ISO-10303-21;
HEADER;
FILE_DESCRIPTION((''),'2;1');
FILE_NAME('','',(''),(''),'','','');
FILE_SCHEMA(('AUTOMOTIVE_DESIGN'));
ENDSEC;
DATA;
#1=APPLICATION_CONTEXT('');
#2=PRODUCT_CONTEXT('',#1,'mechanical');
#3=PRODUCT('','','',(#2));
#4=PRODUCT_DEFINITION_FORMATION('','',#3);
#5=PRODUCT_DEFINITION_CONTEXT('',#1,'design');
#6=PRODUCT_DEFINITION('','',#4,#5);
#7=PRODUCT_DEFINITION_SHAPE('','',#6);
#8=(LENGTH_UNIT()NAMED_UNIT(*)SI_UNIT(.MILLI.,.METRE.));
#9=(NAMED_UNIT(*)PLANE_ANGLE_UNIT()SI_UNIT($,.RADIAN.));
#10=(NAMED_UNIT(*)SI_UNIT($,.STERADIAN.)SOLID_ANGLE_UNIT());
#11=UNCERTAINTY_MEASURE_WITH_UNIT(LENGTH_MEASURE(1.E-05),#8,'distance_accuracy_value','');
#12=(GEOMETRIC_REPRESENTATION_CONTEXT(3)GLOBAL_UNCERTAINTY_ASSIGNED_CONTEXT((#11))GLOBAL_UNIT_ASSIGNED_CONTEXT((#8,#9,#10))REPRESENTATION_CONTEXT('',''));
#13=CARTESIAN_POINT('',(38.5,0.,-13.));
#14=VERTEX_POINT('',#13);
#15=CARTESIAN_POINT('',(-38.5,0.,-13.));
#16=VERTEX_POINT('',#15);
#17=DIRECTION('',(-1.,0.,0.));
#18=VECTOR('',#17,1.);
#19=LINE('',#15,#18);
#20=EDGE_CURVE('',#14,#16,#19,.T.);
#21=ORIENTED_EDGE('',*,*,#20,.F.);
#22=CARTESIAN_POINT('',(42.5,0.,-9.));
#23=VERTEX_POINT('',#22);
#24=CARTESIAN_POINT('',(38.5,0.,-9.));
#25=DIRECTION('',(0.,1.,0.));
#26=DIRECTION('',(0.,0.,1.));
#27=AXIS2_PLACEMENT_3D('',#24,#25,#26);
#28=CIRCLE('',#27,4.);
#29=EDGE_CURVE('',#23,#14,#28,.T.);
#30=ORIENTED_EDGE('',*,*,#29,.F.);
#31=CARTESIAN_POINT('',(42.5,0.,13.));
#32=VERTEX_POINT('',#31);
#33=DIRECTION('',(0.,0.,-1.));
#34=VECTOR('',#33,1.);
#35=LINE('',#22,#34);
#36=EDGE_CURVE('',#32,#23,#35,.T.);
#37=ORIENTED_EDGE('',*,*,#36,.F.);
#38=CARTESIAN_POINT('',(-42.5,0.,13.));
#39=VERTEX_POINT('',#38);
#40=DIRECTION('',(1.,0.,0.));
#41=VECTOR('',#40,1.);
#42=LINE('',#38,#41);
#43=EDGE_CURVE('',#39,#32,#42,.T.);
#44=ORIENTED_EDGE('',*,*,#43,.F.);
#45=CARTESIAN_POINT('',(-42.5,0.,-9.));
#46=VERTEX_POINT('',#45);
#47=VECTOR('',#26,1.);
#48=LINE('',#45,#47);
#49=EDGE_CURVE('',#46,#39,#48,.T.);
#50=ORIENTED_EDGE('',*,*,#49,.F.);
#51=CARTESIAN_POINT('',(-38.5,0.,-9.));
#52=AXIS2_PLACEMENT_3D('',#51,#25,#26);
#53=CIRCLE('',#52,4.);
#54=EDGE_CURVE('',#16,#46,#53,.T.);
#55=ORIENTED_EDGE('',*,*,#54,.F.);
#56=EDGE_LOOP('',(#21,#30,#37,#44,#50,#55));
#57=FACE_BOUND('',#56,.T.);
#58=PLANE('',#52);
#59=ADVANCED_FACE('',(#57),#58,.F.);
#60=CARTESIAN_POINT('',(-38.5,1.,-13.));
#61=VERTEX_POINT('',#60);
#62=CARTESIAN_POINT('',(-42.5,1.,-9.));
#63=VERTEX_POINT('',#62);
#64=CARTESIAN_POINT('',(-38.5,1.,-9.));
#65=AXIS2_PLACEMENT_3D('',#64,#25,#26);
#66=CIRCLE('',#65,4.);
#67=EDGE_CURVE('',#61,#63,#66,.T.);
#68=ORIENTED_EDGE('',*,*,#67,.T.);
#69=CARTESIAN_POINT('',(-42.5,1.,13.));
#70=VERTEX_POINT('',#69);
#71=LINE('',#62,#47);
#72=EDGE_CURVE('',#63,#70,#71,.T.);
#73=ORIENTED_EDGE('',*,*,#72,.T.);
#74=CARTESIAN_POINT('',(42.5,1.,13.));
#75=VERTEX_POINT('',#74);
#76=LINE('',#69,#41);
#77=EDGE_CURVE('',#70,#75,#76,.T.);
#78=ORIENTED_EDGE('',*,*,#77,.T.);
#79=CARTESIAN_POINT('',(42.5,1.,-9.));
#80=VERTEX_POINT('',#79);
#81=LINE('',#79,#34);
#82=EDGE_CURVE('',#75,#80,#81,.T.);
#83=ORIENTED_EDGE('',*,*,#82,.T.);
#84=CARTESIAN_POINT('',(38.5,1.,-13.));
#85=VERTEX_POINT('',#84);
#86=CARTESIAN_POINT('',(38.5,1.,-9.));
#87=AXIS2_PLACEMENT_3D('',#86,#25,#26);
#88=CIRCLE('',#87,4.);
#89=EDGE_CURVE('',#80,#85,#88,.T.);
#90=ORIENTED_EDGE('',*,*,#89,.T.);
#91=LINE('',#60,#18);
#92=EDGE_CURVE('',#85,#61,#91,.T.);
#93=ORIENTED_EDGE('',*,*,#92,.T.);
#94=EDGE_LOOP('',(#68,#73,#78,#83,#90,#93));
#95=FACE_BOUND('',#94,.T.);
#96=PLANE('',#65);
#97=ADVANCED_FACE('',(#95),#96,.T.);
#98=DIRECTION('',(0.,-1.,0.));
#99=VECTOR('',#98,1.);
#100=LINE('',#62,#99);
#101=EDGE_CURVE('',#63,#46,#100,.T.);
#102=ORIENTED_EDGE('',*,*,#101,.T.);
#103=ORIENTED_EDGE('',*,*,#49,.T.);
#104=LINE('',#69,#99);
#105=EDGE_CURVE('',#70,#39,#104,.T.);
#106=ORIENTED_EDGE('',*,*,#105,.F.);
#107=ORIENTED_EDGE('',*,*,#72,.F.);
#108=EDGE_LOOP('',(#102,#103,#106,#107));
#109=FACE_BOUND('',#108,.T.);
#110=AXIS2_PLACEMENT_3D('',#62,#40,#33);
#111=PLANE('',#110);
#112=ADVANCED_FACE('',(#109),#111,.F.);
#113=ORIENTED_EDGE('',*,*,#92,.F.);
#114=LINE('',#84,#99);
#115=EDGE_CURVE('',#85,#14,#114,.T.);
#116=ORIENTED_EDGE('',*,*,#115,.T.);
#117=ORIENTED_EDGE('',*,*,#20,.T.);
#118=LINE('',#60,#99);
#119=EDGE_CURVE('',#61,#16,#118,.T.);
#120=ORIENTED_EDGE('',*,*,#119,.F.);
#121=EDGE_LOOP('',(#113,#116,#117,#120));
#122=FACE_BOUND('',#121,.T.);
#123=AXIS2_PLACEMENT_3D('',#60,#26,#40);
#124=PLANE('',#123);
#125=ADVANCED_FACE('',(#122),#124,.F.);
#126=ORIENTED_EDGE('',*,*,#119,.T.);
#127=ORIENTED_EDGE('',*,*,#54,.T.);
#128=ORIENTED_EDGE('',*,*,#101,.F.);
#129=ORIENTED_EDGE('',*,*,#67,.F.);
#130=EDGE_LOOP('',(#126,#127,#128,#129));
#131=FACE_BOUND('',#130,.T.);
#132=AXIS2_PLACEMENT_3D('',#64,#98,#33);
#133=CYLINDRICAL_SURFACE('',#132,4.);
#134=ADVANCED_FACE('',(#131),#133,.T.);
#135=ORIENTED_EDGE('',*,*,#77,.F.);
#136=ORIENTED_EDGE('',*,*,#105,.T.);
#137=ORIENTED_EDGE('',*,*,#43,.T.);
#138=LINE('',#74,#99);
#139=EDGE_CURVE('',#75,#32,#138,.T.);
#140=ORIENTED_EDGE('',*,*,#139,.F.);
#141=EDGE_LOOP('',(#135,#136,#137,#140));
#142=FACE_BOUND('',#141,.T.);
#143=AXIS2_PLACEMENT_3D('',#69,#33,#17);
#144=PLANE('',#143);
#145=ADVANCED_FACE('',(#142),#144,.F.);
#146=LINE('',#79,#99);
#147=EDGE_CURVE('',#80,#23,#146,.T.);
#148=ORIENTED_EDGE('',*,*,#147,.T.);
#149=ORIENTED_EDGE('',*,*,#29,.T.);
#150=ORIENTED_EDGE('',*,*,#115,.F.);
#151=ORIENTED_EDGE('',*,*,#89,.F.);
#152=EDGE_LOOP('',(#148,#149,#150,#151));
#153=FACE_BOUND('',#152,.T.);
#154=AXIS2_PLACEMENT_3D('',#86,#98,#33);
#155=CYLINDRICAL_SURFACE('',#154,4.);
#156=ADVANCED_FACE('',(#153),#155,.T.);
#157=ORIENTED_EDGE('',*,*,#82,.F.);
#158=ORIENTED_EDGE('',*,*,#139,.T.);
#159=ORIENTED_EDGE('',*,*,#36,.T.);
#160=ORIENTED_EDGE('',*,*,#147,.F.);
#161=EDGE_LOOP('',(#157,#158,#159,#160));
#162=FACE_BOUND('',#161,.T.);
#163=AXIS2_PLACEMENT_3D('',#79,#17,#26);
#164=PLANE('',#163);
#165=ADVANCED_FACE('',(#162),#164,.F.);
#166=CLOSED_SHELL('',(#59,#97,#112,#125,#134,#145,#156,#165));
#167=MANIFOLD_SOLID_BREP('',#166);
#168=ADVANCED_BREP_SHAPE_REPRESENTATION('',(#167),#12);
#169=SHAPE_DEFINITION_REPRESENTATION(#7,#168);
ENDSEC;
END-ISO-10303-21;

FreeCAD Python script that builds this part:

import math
import FreeCAD as App
import Part
import Sketcher

V = App.Vector
Q = App.Units.Quantity

doc = App.newDocument("Part")
body = doc.addObject("PartDesign::Body", "Body")

# Sketch on XZ plane
sketch1 = body.newObject("Sketcher::SketchObject", "Sketch")
sketch1.AttachmentSupport = (doc.getObject("XZ_Plane"), [""])
sketch1.MapMode = "FlatFace"
sketch1.addGeometry([
    Part.LineSegment(V(38.5, -13, 0), V(-38.5, -13, 0)),  # 0
    Part.ArcOfCircle(Part.Circle(V(-38.5, -9, 0), V(0, 0, 1), 4), math.radians(180), math.radians(270)),  # 1
    Part.LineSegment(V(-42.5, -9, 0), V(-42.5, 13, 0)),  # 2
    Part.LineSegment(V(-42.5, 13, 0), V(42.5, 13, 0)),  # 3
    Part.LineSegment(V(42.5, 13, 0), V(42.5, -9, 0)),  # 4
    Part.ArcOfCircle(Part.Circle(V(38.5, -9, 0), V(0, 0, 1), 4), math.radians(-90), math.radians(0)),  # 5
], False)
sketch1.addConstraint([
    Sketcher.Constraint("Tangent", 0, 2, 1, 2),
    Sketcher.Constraint("Tangent", 1, 1, 2, 1),
    Sketcher.Constraint("Coincident", 2, 2, 3, 1),
    Sketcher.Constraint("Coincident", 3, 2, 4, 1),
    Sketcher.Constraint("Tangent", 4, 2, 5, 2),
    Sketcher.Constraint("Tangent", 5, 1, 0, 1),
    Sketcher.Constraint("Horizontal", 0),
    Sketcher.Constraint("Vertical", 2),
    Sketcher.Constraint("Horizontal", 3),
    Sketcher.Constraint("Vertical", 4),
    Sketcher.Constraint("Equal", 1, 5),
    Sketcher.Constraint("Radius", 1, Q("4 mm")),
    Sketcher.Constraint("DistanceX", 0, 2, 0, 1, Q("77 mm")),
    Sketcher.Constraint("DistanceY", 2, 1, 2, 2, Q("22 mm")),
    Sketcher.Constraint("DistanceY", 1, 3, -1, 1, Q("9 mm")),
    Sketcher.Constraint("DistanceX", 1, 3, -1, 1, Q("38.5 mm")),
])
pad1 = body.newObject("PartDesign::Pad", "Pad")
pad1.Profile = sketch1
pad1.Length = 1
pad1.Reversed = True

doc.recompute()
